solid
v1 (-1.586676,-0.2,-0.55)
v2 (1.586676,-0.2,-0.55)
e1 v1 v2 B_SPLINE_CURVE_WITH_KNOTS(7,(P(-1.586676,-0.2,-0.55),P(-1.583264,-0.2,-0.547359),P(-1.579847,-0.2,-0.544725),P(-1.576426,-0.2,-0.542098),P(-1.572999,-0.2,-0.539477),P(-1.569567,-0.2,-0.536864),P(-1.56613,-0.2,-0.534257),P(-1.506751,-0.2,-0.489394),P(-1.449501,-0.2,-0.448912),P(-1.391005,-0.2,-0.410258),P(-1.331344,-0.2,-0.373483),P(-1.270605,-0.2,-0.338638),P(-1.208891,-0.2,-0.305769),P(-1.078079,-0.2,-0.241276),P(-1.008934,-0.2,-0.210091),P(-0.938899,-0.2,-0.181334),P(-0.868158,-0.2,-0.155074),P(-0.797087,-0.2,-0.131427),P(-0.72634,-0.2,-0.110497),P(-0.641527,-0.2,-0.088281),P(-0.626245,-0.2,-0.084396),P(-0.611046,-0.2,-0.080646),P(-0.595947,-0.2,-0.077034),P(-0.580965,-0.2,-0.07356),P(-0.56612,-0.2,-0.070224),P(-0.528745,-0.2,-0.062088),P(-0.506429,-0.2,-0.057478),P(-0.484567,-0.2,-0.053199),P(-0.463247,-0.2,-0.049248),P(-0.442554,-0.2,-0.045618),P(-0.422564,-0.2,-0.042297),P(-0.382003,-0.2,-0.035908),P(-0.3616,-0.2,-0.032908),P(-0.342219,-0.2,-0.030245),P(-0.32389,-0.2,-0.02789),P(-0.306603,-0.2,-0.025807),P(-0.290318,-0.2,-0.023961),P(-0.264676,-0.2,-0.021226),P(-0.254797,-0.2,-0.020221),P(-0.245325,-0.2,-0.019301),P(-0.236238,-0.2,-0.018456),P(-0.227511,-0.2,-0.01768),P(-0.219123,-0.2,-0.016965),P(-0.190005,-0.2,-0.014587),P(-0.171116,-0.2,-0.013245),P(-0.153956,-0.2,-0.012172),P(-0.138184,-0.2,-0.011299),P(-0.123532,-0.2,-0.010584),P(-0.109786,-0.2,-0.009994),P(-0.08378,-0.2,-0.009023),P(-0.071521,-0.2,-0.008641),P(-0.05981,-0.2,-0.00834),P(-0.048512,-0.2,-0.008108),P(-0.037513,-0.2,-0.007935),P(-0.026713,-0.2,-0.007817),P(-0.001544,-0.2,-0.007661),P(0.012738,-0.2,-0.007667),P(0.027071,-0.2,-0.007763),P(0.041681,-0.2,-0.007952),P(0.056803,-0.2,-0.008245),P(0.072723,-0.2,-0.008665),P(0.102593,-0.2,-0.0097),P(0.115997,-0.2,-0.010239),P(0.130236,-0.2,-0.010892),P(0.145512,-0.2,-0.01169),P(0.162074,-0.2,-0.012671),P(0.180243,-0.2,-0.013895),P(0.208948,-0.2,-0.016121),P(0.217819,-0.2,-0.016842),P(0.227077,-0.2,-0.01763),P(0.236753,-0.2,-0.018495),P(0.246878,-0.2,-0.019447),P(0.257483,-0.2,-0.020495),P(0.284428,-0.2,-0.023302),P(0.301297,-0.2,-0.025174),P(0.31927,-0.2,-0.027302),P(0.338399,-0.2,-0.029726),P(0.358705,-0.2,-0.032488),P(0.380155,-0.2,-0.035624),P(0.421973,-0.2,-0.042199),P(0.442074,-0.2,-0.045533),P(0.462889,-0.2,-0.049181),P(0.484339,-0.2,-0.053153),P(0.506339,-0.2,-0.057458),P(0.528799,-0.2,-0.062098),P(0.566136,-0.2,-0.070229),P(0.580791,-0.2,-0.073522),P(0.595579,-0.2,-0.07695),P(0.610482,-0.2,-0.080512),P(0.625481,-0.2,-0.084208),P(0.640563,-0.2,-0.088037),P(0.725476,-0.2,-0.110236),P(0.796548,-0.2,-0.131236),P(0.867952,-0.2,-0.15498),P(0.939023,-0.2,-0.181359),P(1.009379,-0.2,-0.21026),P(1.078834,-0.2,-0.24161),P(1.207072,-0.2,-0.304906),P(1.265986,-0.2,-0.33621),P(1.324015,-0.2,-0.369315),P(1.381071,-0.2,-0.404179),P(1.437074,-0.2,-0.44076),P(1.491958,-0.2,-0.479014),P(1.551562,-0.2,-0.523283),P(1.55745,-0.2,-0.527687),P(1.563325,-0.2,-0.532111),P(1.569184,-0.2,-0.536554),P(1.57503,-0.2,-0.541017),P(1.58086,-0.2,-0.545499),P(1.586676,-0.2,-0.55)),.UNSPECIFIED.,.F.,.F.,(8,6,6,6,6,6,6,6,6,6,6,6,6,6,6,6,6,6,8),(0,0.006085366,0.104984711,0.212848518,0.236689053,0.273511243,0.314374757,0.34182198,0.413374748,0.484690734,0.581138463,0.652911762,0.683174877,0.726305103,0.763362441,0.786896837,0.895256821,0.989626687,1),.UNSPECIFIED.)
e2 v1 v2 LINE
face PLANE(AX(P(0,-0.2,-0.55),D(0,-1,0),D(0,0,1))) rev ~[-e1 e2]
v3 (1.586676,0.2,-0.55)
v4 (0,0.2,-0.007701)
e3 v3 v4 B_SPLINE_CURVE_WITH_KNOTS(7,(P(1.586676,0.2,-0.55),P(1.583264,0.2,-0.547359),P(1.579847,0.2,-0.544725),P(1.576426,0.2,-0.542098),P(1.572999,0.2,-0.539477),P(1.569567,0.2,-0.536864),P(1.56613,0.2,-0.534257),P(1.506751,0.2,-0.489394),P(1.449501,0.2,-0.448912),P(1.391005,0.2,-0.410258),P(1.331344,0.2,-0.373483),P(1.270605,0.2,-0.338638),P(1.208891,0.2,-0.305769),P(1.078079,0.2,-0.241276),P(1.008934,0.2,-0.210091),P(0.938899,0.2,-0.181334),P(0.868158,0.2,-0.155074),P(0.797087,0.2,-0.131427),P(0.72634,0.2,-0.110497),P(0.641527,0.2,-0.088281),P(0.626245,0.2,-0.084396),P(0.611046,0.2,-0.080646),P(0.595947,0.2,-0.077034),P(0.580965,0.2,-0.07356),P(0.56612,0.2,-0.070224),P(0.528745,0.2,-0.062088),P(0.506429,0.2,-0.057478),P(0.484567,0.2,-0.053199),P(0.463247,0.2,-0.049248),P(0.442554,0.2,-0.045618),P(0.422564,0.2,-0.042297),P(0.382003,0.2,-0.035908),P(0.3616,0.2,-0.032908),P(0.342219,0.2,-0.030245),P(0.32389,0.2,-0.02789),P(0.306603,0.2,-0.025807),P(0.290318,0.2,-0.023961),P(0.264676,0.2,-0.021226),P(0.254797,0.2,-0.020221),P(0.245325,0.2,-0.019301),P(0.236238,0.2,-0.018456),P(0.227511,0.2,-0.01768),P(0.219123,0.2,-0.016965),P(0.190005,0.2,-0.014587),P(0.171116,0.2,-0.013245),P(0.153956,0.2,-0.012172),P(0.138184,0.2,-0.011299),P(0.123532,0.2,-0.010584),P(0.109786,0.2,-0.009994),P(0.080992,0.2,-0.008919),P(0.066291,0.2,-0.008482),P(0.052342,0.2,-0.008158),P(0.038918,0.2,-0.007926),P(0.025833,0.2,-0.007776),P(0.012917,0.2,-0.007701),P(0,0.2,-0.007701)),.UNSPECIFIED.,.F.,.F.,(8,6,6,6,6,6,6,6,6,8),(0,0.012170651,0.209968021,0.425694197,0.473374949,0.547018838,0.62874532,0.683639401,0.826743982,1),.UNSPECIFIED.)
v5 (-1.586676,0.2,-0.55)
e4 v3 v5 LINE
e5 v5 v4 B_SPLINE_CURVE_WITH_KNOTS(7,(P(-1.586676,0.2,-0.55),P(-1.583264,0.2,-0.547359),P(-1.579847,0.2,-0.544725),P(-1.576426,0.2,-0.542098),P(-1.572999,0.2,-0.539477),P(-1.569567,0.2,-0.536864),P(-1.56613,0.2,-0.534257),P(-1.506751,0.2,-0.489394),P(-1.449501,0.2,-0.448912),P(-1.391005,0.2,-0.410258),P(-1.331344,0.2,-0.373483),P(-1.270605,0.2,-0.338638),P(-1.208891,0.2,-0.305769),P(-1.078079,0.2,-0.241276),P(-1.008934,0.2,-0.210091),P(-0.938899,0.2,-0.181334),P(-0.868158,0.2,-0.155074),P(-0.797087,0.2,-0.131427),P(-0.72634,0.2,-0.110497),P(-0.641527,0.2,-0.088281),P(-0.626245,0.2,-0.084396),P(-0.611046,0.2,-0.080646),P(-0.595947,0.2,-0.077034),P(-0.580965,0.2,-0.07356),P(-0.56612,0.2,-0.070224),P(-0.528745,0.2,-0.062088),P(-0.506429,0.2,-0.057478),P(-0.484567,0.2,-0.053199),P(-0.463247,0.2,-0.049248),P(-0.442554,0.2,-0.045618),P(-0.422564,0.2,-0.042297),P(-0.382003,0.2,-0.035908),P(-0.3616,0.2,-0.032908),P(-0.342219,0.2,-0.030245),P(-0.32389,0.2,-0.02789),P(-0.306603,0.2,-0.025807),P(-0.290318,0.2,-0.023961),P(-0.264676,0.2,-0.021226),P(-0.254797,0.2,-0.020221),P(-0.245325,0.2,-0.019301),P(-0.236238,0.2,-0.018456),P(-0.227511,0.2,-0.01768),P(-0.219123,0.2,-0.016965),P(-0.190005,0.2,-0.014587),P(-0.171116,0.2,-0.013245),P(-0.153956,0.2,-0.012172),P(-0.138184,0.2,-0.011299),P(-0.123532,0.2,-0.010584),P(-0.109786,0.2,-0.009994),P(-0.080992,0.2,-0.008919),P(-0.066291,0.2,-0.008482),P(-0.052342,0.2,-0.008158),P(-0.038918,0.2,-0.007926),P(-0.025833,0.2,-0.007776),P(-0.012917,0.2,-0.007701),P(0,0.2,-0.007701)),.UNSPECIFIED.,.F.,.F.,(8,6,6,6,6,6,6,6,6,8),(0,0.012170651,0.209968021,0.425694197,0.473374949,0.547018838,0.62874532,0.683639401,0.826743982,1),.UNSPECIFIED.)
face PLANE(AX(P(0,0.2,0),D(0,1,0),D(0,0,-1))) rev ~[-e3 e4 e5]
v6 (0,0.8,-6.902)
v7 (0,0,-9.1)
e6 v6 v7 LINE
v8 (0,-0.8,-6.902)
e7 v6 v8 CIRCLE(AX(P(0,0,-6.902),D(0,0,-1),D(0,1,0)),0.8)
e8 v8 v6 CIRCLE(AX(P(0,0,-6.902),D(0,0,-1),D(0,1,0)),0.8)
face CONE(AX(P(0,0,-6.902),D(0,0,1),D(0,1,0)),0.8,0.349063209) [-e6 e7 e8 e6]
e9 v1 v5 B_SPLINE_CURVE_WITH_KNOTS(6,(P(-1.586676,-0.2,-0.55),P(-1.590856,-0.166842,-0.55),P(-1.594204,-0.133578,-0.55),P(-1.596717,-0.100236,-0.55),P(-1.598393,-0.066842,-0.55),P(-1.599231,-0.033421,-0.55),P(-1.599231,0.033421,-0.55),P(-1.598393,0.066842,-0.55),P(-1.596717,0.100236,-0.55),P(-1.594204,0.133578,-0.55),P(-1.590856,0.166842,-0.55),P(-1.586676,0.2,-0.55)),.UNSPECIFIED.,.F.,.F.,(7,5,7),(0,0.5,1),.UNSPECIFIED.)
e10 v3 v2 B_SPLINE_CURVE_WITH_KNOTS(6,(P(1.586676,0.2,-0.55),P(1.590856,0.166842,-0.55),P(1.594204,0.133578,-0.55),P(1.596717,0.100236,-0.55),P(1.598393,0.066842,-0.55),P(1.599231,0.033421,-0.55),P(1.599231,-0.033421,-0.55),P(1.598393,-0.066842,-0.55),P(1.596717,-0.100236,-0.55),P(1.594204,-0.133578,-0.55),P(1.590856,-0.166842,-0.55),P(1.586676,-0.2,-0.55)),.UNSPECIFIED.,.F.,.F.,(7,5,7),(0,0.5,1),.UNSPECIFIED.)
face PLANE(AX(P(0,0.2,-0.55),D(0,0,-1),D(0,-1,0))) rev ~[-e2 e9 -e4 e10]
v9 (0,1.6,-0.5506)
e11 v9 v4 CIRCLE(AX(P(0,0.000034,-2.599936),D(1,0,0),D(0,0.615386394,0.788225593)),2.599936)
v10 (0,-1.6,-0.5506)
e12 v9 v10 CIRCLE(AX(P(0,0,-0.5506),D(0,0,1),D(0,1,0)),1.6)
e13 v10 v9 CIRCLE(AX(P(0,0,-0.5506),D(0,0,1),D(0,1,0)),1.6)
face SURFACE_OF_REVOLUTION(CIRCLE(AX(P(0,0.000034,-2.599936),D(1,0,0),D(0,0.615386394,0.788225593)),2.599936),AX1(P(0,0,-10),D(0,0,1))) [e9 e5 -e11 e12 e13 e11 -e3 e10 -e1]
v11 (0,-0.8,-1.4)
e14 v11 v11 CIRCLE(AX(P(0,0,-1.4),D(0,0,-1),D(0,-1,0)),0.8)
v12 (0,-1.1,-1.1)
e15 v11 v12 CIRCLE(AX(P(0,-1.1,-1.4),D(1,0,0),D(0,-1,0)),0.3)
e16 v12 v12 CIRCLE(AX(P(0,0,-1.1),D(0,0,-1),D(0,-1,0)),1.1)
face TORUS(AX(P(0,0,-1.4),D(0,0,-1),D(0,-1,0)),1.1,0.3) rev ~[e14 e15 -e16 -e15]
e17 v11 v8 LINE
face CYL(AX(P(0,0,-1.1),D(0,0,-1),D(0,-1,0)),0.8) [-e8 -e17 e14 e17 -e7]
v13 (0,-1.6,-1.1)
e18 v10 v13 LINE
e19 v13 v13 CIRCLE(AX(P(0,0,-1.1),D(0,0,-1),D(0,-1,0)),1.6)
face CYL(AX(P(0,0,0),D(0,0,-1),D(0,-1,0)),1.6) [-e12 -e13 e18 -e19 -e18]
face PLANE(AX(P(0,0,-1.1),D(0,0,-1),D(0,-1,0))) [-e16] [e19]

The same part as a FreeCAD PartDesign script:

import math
import FreeCAD as App
import Part
import Sketcher

V = App.Vector
Q = App.Units.Quantity


def edges_at(feature, points):
    """Names of the edges that pass closest to the given points."""
    edges = feature.Shape.Edges
    near = lambda p: min(range(len(edges)), key=lambda i: edges[i].distToShape(Part.Vertex(*p))[0])
    return sorted({f"Edge{near(p) + 1}" for p in points})


def add_polygon(sketch, points):
    """Adds a closed chain of lines whose ends are joined by coincident constraints."""
    first, n = sketch.GeometryCount, len(points)
    for a, b in zip(points, points[1:] + points[:1]):
        sketch.addGeometry(Part.LineSegment(App.Vector(*a, 0), App.Vector(*b, 0)), False)
    for i in range(n):
        sketch.addConstraint(Sketcher.Constraint("Coincident", first + i, 2, first + (i + 1) % n, 1))

doc = App.newDocument("Part")
params = doc.addObject("Spreadsheet::Sheet", "Params")
for row, (alias, value) in enumerate([
    ("sketch1_height", "8 mm"),
    ("sketch1_width", "1.6 mm"),
    ("sketch1_height2", "1.1 mm"),
    ("revolution_angle", "360 deg"),
    ("fillet_radius", "0.3 mm"),
    ("sketch2_width", "0.8 mm"),
    ("groove_angle", "360 deg"),
    ("sketch3_width", "0.4 mm"),
    ("sketch3_height", "0.55 mm"),
    ("sketch4_radius", "2.6 mm"),
    ("sketch4_width", "1.6 mm"),
    ("groove2_angle", "360 deg"),
], start=1):
    params.set(f"A{row}", alias)
    params.set(f"B{row}", "=" + value)
    params.setAlias(f"B{row}", alias)

body = doc.addObject("PartDesign::Body", "Body")

# Sketch on YZ plane
sketch1 = body.newObject("Sketcher::SketchObject", "Sketch")
sketch1.AttachmentSupport = (doc.getObject("YZ_Plane"), [""])
sketch1.MapMode = "FlatFace"
add_polygon(sketch1, [(0, -9.1), (0, 0), (-1.6, 0), (-1.6, -1.1), (-0.8, -1.1), (-0.8, -9.1)])  # lines 0-5
sketch1.addConstraint([
    Sketcher.Constraint("Vertical", 0),
    Sketcher.Constraint("Horizontal", 1),
    Sketcher.Constraint("Vertical", 2),
    Sketcher.Constraint("Horizontal", 3),
    Sketcher.Constraint("Vertical", 4),
    Sketcher.Constraint("Horizontal", 5),
    Sketcher.Constraint("Coincident", 0, 2, -1, 1),
    Sketcher.Constraint("Equal", 3, 5),
    Sketcher.Constraint("DistanceY", 4, 2, 4, 1, Q("8 mm")),
    Sketcher.Constraint("DistanceX", 1, 2, 1, 1, Q("1.6 mm")),
    Sketcher.Constraint("DistanceY", 2, 2, 2, 1, Q("1.1 mm")),
])
sketch1.setExpression("Constraints[14]", "Params.sketch1_height")
sketch1.setExpression("Constraints[15]", "Params.sketch1_width")
sketch1.setExpression("Constraints[16]", "Params.sketch1_height2")
revolution = body.newObject("PartDesign::Revolution", "Revolution")
revolution.Profile = sketch1
revolution.ReferenceAxis = (sketch1, ["V_Axis"])
revolution.setExpression("Angle", "Params.revolution_angle")
doc.recompute()

fillet = body.newObject("PartDesign::Fillet", "Fillet")
fillet.Base = (revolution, edges_at(revolution, [(0, 0.8, -1.1)]))
fillet.setExpression("Radius", "Params.fillet_radius")

# Sketch on YZ plane
sketch2 = body.newObject("Sketcher::SketchObject", "Sketch001")
sketch2.AttachmentSupport = (doc.getObject("YZ_Plane"), [""])
sketch2.MapMode = "FlatFace"
add_polygon(sketch2, [(0, -9.1), (0.8, -9.1), (0.8, -6.902)])  # lines 0-2
sketch2.addConstraint([
    Sketcher.Constraint("Horizontal", 0),
    Sketcher.Constraint("Vertical", 1),
    Sketcher.Constraint("PointOnObject", 2, 2, -2),
    Sketcher.Constraint("Angle", 2, Q("-109.9998 deg")),
    Sketcher.Constraint("DistanceX", 0, 1, 0, 2, Q("0.8 mm")),
    Sketcher.Constraint("DistanceY", 0, 2, -1, 1, Q("9.1 mm")),
])
sketch2.setExpression("Constraints[7]", "Params.sketch2_width")
groove = body.newObject("PartDesign::Groove", "Groove")
groove.Profile = sketch2
groove.ReferenceAxis = (sketch2, ["V_Axis"])
groove.setExpression("Angle", "Params.groove_angle")

# Sketch on YZ plane
sketch3 = body.newObject("Sketcher::SketchObject", "Sketch002")
sketch3.AttachmentSupport = (doc.getObject("YZ_Plane"), [""])
sketch3.MapMode = "FlatFace"
add_polygon(sketch3, [(0.2, 0), (-0.2, 0), (-0.2, -0.55), (0.2, -0.55)])  # lines 0-3
sketch3.addConstraint([
    Sketcher.Constraint("Horizontal", 0),
    Sketcher.Constraint("Vertical", 1),
    Sketcher.Constraint("Horizontal", 2),
    Sketcher.Constraint("Vertical", 3),
    Sketcher.Constraint("Symmetric", 0, 2, 3, 2, -1, 1),
    Sketcher.Constraint("DistanceX", 0, 2, 0, 1, Q("0.4 mm")),
    Sketcher.Constraint("DistanceY", 1, 2, 1, 1, Q("0.55 mm")),
])
sketch3.setExpression("Constraints[9]", "Params.sketch3_width")
sketch3.setExpression("Constraints[10]", "Params.sketch3_height")
pocket1 = body.newObject("PartDesign::Pocket", "Pocket")
pocket1.Profile = sketch3
pocket1.Type = "ThroughAll"
pocket1.Midplane = True

# Sketch on YZ plane
sketch4 = body.newObject("Sketcher::SketchObject", "Sketch003")
sketch4.AttachmentSupport = (doc.getObject("YZ_Plane"), [""])
sketch4.MapMode = "FlatFace"
sketch4.addGeometry([
    Part.ArcOfCircle(Part.Circle(V(0, -2.6, 0), V(0, 0, 1), 2.600008), math.radians(52.020261), math.radians(90)),
    Part.LineSegment(V(1.6, -0.5506, 0), V(1.6, 0, 0)),
    Part.LineSegment(V(1.6, 0, 0), V(0, 0, 0)),
], False)
sketch4.addConstraint([
    Sketcher.Constraint("Coincident", 0, 1, 1, 1),
    Sketcher.Constraint("Coincident", 1, 2, 2, 1),
    Sketcher.Constraint("Tangent", 2, 2, 0, 2),
    Sketcher.Constraint("Vertical", 1),
    Sketcher.Constraint("Horizontal", 2),
    Sketcher.Constraint("Coincident", 2, 2, -1, 1),
    Sketcher.Constraint("Radius", 0, Q("2.6 mm")),
    Sketcher.Constraint("DistanceX", 2, 2, 2, 1, Q("1.6 mm")),
])
sketch4.setExpression("Constraints[6]", "Params.sketch4_radius")
sketch4.setExpression("Constraints[7]", "Params.sketch4_width")
groove2 = body.newObject("PartDesign::Groove", "Groove001")
groove2.Profile = sketch4
groove2.ReferenceAxis = (sketch4, ["V_Axis"])
groove2.setExpression("Angle", "Params.groove2_angle")

doc.recompute()
